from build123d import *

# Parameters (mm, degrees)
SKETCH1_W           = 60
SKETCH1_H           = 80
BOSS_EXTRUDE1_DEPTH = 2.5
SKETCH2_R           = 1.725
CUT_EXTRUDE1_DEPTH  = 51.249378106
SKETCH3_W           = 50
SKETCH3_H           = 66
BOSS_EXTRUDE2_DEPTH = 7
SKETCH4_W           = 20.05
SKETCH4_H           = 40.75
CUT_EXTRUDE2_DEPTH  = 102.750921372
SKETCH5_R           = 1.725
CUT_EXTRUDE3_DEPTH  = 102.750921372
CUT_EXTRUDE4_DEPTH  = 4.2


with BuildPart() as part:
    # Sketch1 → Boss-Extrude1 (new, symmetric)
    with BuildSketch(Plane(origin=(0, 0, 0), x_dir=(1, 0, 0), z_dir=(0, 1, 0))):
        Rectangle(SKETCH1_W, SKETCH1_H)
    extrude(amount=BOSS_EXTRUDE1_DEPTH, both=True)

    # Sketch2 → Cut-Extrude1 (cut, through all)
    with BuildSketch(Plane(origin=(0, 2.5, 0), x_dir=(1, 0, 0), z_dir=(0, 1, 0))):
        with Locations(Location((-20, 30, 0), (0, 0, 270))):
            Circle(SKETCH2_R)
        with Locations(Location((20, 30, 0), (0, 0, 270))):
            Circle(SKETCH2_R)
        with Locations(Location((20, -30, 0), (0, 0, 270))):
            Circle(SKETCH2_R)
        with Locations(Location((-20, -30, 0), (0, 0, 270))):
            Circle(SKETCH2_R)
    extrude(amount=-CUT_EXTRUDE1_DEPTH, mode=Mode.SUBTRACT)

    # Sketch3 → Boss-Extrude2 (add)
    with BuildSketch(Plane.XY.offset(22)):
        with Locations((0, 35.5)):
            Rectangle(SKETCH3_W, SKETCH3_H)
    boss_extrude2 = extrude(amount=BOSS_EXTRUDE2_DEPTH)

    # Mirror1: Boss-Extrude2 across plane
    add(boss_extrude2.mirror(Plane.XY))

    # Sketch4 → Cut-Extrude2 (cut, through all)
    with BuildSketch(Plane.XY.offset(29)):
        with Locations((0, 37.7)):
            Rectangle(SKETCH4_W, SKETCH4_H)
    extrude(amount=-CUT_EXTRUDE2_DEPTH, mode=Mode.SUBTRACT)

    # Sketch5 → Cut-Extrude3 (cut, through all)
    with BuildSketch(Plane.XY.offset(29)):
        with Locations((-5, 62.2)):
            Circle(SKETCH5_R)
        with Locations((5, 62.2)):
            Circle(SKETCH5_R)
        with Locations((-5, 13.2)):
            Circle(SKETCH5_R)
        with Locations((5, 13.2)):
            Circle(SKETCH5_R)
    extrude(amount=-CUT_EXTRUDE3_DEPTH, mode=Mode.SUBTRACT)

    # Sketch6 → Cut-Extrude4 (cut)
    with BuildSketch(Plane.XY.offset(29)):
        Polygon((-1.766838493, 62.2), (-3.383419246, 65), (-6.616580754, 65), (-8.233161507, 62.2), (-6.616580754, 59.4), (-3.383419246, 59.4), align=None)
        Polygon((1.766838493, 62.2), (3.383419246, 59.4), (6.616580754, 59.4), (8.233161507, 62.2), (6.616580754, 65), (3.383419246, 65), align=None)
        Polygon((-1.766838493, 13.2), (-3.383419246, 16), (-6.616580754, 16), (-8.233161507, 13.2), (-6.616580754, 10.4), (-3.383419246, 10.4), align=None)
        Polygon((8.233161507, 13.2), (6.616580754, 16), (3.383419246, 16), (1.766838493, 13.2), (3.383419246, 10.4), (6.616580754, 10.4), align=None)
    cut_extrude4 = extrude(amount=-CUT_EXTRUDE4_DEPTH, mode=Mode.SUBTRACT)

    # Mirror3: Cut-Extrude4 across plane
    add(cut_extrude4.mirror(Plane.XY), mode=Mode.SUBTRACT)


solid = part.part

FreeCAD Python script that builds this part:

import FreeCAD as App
import Part
import Sketcher

V = App.Vector
Q = App.Units.Quantity


def add_polygon(sketch, points):
    """Adds a closed chain of lines whose ends are joined by coincident constraints."""
    first, n = sketch.GeometryCount, len(points)
    for a, b in zip(points, points[1:] + points[:1]):
        sketch.addGeometry(Part.LineSegment(App.Vector(*a, 0), App.Vector(*b, 0)), False)
    for i in range(n):
        sketch.addConstraint(Sketcher.Constraint("Coincident", first + i, 2, first + (i + 1) % n, 1))

doc = App.newDocument("Part")
params = doc.addObject("Spreadsheet::Sheet", "Params")
for row, (alias, value) in enumerate([
    ("sketch1_width", "60 mm"),
    ("sketch1_height", "80 mm"),
    ("pad1_length", "5 mm"),
    ("sketch2_diameter", "3.45 mm"),
    ("sketch3_width", "50 mm"),
    ("sketch3_height", "66 mm"),
    ("pad2_length", "7 mm"),
    ("sketch4_width", "20.05 mm"),
    ("sketch4_height", "40.75 mm"),
    ("sketch5_diameter", "3.45 mm"),
    ("pocket4_length", "4.2 mm"),
], start=1):
    params.set(f"A{row}", alias)
    params.set(f"B{row}", "=" + value)
    params.setAlias(f"B{row}", alias)

body = doc.addObject("PartDesign::Body", "Body")

# Sketch on XZ plane
sketch1 = doc.addObject("Sketcher::SketchObject", "Sketch")
body.addObject(sketch1)
sketch1.AttachmentSupport = (doc.XZ_Plane, [""])
sketch1.MapMode = "FlatFace"
add_polygon(sketch1, [(-30, -40), (-30, 40), (30, 40), (30, -40)])  # lines 0-3
sketch1.addConstraint(Sketcher.Constraint("Vertical", 0))
sketch1.addConstraint(Sketcher.Constraint("Horizontal", 1))
sketch1.addConstraint(Sketcher.Constraint("Vertical", 2))
sketch1.addConstraint(Sketcher.Constraint("Horizontal", 3))
sketch1.addConstraint(Sketcher.Constraint("Symmetric", 0, 2, 2, 2, -1, 1))
sketch1.addConstraint(Sketcher.Constraint("DistanceX", 1, 1, 1, 2, 60.0))
sketch1.addConstraint(Sketcher.Constraint("DistanceY", 0, 1, 0, 2, 80.0))
sketch1.setExpression("Constraints[9]", "Params.sketch1_width")
sketch1.setExpression("Constraints[10]", "Params.sketch1_height")
pad1 = doc.addObject("PartDesign::Pad", "Pad")
body.addObject(pad1)
pad1.Profile = sketch1
pad1.setExpression("Length", "Params.pad1_length")
pad1.Midplane = True

# Sketch on XZ plane
sketch2 = doc.addObject("Sketcher::SketchObject", "Sketch001")
body.addObject(sketch2)
sketch2.AttachmentSupport = (doc.XZ_Plane, [""])
sketch2.MapMode = "FlatFace"
sketch2.AttachmentOffset = App.Placement(V(0, 0, -2.5), App.Rotation())
sketch2.addGeometry(Part.Circle(V(-20, -30, 0), V(0, 0, 1), 1.7), False)
sketch2.addGeometry(Part.Circle(V(20, -30, 0), V(0, 0, 1), 1.7), False)
sketch2.addGeometry(Part.Circle(V(20, 30, 0), V(0, 0, 1), 1.7), False)
sketch2.addGeometry(Part.Circle(V(-20, 30, 0), V(0, 0, 1), 1.7), False)
sketch2.addConstraint(Sketcher.Constraint("Equal", 0, 1))
sketch2.addConstraint(Sketcher.Constraint("Equal", 1, 2))
sketch2.addConstraint(Sketcher.Constraint("Equal", 2, 3))
sketch2.addConstraint(Sketcher.Constraint("Symmetric", 0, 3, 2, 3, -1, 1))
sketch2.addConstraint(Sketcher.Constraint("Symmetric", 1, 3, 3, 3, -1, 1))
sketch2.addConstraint(Sketcher.Constraint("Symmetric", 0, 3, 1, 3, -2))
sketch2.addConstraint(Sketcher.Constraint("Diameter", 0, 3.45))
sketch2.addConstraint(Sketcher.Constraint("DistanceX", 0, 3, -1, 1, 20.0))
sketch2.addConstraint(Sketcher.Constraint("DistanceY", 0, 3, -1, 1, 30.0))
sketch2.setExpression("Constraints[6]", "Params.sketch2_diameter")
pocket1 = doc.addObject("PartDesign::Pocket", "Pocket")
body.addObject(pocket1)
pocket1.Profile = sketch2
pocket1.Type = "ThroughAll"
pocket1.Reversed = True

# Sketch on XY plane
sketch3 = doc.addObject("Sketcher::SketchObject", "Sketch002")
body.addObject(sketch3)
sketch3.AttachmentSupport = (doc.XY_Plane, [""])
sketch3.MapMode = "FlatFace"
sketch3.AttachmentOffset = App.Placement(V(0, 0, 22), App.Rotation())
add_polygon(sketch3, [(-25, 68), (-25, 2), (25, 2), (25, 68)])  # lines 0-3
sketch3.addConstraint(Sketcher.Constraint("Vertical", 0))
sketch3.addConstraint(Sketcher.Constraint("Horizontal", 1))
sketch3.addConstraint(Sketcher.Constraint("Vertical", 2))
sketch3.addConstraint(Sketcher.Constraint("Horizontal", 3))
sketch3.addConstraint(Sketcher.Constraint("DistanceX", 1, 1, 1, 2, 50.0))
sketch3.addConstraint(Sketcher.Constraint("DistanceY", 0, 2, 0, 1, 66.0))
sketch3.addConstraint(Sketcher.Constraint("DistanceX", 0, 2, -1, 1, 25.0))
sketch3.addConstraint(Sketcher.Constraint("DistanceY", -1, 1, 0, 2, 2.5))
sketch3.setExpression("Constraints[8]", "Params.sketch3_width")
sketch3.setExpression("Constraints[9]", "Params.sketch3_height")
pad2 = doc.addObject("PartDesign::Pad", "Pad001")
body.addObject(pad2)
pad2.Profile = sketch3
pad2.setExpression("Length", "Params.pad2_length")
doc.recompute()

mirrored = doc.addObject("PartDesign::Mirrored", "Mirrored")
body.addObject(mirrored)
mirrored.Originals = [pad2]
mirrored.MirrorPlane = (doc.XY_Plane, [""])
body.Tip = mirrored

# Sketch on XY plane
sketch4 = doc.addObject("Sketcher::SketchObject", "Sketch003")
body.addObject(sketch4)
sketch4.AttachmentSupport = (doc.XY_Plane, [""])
sketch4.MapMode = "FlatFace"
sketch4.AttachmentOffset = App.Placement(V(0, 0, 29), App.Rotation())
add_polygon(sketch4, [(-10, 58), (-10, 17), (10, 17), (10, 58)])  # lines 0-3
sketch4.addConstraint(Sketcher.Constraint("Vertical", 0))
sketch4.addConstraint(Sketcher.Constraint("Horizontal", 1))
sketch4.addConstraint(Sketcher.Constraint("Vertical", 2))
sketch4.addConstraint(Sketcher.Constraint("Horizontal", 3))
sketch4.addConstraint(Sketcher.Constraint("DistanceX", 1, 1, 1, 2, 20.05))
sketch4.addConstraint(Sketcher.Constraint("DistanceY", 0, 2, 0, 1, 40.75))
sketch4.addConstraint(Sketcher.Constraint("DistanceX", 0, 2, -1, 1, 10.025))
sketch4.addConstraint(Sketcher.Constraint("DistanceY", -1, 1, 0, 2, 17.325))
sketch4.setExpression("Constraints[8]", "Params.sketch4_width")
sketch4.setExpression("Constraints[9]", "Params.sketch4_height")
pocket2 = doc.addObject("PartDesign::Pocket", "Pocket001")
body.addObject(pocket2)
pocket2.Profile = sketch4
pocket2.Type = "ThroughAll"

# Sketch on XY plane
sketch5 = doc.addObject("Sketcher::SketchObject", "Sketch004")
body.addObject(sketch5)
sketch5.AttachmentSupport = (doc.XY_Plane, [""])
sketch5.MapMode = "FlatFace"
sketch5.AttachmentOffset = App.Placement(V(0, 0, 29), App.Rotation())
sketch5.addGeometry(Part.Circle(V(-5, 62.2, 0), V(0, 0, 1), 1.7), False)
sketch5.addGeometry(Part.Circle(V(5, 62.2, 0), V(0, 0, 1), 1.7), False)
sketch5.addGeometry(Part.Circle(V(-5, 13.2, 0), V(0, 0, 1), 1.7), False)
sketch5.addGeometry(Part.Circle(V(5, 13.2, 0), V(0, 0, 1), 1.7), False)
sketch5.addConstraint(Sketcher.Constraint("Equal", 0, 1))
sketch5.addConstraint(Sketcher.Constraint("Equal", 1, 2))
sketch5.addConstraint(Sketcher.Constraint("Equal", 2, 3))
sketch5.addConstraint(Sketcher.Constraint("Symmetric", 0, 3, 1, 3, -2))
sketch5.addConstraint(Sketcher.Constraint("Symmetric", 2, 3, 3, 3, -2))
sketch5.addConstraint(Sketcher.Constraint("Vertical", 0, 3, 2, 3))
sketch5.addConstraint(Sketcher.Constraint("Diameter", 0, 3.45))
sketch5.addConstraint(Sketcher.Constraint("DistanceX", 0, 3, -1, 1, 5.0))
sketch5.addConstraint(Sketcher.Constraint("DistanceY", 2, 3, 0, 3, 49.0))
sketch5.addConstraint(Sketcher.Constraint("DistanceY", -1, 1, 0, 3, 62.2))
sketch5.setExpression("Constraints[6]", "Params.sketch5_diameter")
pocket3 = doc.addObject("PartDesign::Pocket", "Pocket002")
body.addObject(pocket3)
pocket3.Profile = sketch5
pocket3.Type = "ThroughAll"

# Sketch on XY plane
sketch6 = doc.addObject("Sketcher::SketchObject", "Sketch005")
body.addObject(sketch6)
sketch6.AttachmentSupport = (doc.XY_Plane, [""])
sketch6.MapMode = "FlatFace"
sketch6.AttachmentOffset = App.Placement(V(0, 0, 29), App.Rotation())
add_polygon(sketch6, [(-1.8, 62.2), (-3.4, 65), (-6.6, 65), (-8.2, 62.2), (-6.6, 59.4), (-3.4, 59.4)])  # lines 0-5
add_polygon(sketch6, [(1.8, 62.2), (3.4, 59.4), (6.6, 59.4), (8.2, 62.2), (6.6, 65), (3.4, 65)])  # lines 6-11
add_polygon(sketch6, [(-1.8, 13.2), (-3.4, 16), (-6.6, 16), (-8.2, 13.2), (-6.6, 10.4), (-3.4, 10.4)])  # lines 12-17
add_polygon(sketch6, [(8.2, 13.2), (6.6, 16), (3.4, 16), (1.8, 13.2), (3.4, 10.4), (6.6, 10.4)])  # lines 18-23
sketch6.addConstraint(Sketcher.Constraint("Horizontal", 1))
sketch6.addConstraint(Sketcher.Constraint("Horizontal", 4))
sketch6.addConstraint(Sketcher.Constraint("Horizontal", 7))
sketch6.addConstraint(Sketcher.Constraint("Horizontal", 10))
sketch6.addConstraint(Sketcher.Constraint("Horizontal", 13))
sketch6.addConstraint(Sketcher.Constraint("Horizontal", 16))
sketch6.addConstraint(Sketcher.Constraint("Horizontal", 19))
sketch6.addConstraint(Sketcher.Constraint("Horizontal", 22))
sketch6.addConstraint(Sketcher.Constraint("Symmetric", 4, 2, 6, 2, -2))
sketch6.addConstraint(Sketcher.Constraint("Symmetric", 2, 2, 8, 2, -2))
sketch6.addConstraint(Sketcher.Constraint("Symmetric", 1, 2, 9, 2, -2))
sketch6.addConstraint(Sketcher.Constraint("Symmetric", 5, 2, 11, 2, -2))
sketch6.addConstraint(Sketcher.Constraint("Symmetric", 13, 2, 18, 2, -2))
sketch6.addConstraint(Sketcher.Constraint("Symmetric", 17, 2, 20, 2, -2))
sketch6.addConstraint(Sketcher.Constraint("Symmetric", 16, 2, 21, 2, -2))
sketch6.addConstraint(Sketcher.Constraint("Symmetric", 14, 2, 23, 2, -2))
sketch6.addConstraint(Sketcher.Constraint("Parallel", 0, 3))
sketch6.addConstraint(Sketcher.Constraint("Parallel", 2, 5))
sketch6.addConstraint(Sketcher.Constraint("Parallel", 3, 6))
sketch6.addConstraint(Sketcher.Constraint("Parallel", 5, 8))
sketch6.addConstraint(Sketcher.Constraint("Parallel", 8, 11))
sketch6.addConstraint(Sketcher.Constraint("Parallel", 9, 12))
sketch6.addConstraint(Sketcher.Constraint("Parallel", 11, 14))
sketch6.addConstraint(Sketcher.Constraint("Parallel", 12, 15))
sketch6.addConstraint(Sketcher.Constraint("Parallel", 14, 17))
sketch6.addConstraint(Sketcher.Constraint("Parallel", 17, 20))
sketch6.addConstraint(Sketcher.Constraint("Parallel", 20, 23))
sketch6.addConstraint(Sketcher.Constraint("Horizontal", 2, 2, 5, 2))
sketch6.addConstraint(Sketcher.Constraint("Horizontal", 14, 2, 17, 2))
sketch6.addConstraint(Sketcher.Constraint("Vertical", 1, 2, 3, 2))
sketch6.addConstraint(Sketcher.Constraint("Vertical", 4, 2, 12, 2))
sketch6.addConstraint(Sketcher.Constraint("Vertical", 3, 2, 13, 2))
sketch6.addConstraint(Sketcher.Constraint("Vertical", 2, 2, 14, 2))
sketch6.addConstraint(Sketcher.Constraint("Vertical", 13, 2, 15, 2))
sketch6.addConstraint(Sketcher.Constraint("Angle", 0, Q("120 deg")))
sketch6.addConstraint(Sketcher.Constraint("DistanceY", -1, 1, 0, 2, 65.0))
sketch6.addConstraint(Sketcher.Constraint("DistanceY", -1, 1, 12, 2, 16.0))
sketch6.addConstraint(Sketcher.Constraint("DistanceX", 3, 2, 6, 2, 10.0))
sketch6.addConstraint(Sketcher.Constraint("DistanceY", -1, 1, 2, 2, 62.2))
sketch6.addConstraint(Sketcher.Constraint("DistanceX", 1, 2, 1, 1, 3.233162))
pocket4 = doc.addObject("PartDesign::Pocket", "Pocket003")
body.addObject(pocket4)
pocket4.Profile = sketch6
pocket4.setExpression("Length", "Params.pocket4_length")
doc.recompute()

mirrored2 = doc.addObject("PartDesign::Mirrored", "Mirrored001")
body.addObject(mirrored2)
mirrored2.Originals = [pocket4]
mirrored2.MirrorPlane = (doc.XY_Plane, [""])
body.Tip = mirrored2

doc.recompute()
